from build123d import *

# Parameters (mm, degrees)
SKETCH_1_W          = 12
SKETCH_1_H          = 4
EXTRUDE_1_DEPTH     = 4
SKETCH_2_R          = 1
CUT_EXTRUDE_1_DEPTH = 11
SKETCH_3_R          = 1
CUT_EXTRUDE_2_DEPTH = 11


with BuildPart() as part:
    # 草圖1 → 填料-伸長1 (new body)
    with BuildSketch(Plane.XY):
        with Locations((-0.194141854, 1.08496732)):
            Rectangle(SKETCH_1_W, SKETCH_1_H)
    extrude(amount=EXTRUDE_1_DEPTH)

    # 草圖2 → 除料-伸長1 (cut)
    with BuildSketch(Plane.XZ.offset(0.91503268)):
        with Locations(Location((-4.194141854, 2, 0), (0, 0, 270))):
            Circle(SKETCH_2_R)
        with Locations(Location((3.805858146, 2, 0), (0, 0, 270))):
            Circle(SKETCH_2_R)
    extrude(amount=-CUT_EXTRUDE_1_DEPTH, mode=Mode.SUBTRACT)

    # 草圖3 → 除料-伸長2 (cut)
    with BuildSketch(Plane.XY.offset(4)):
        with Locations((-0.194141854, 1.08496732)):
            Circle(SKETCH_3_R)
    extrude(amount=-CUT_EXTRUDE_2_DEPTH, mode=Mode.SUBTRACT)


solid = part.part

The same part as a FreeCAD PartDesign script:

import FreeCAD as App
import Part
import Sketcher
from FreeCAD import Vector
Q = App.Units.Quantity

doc = App.newDocument("Part")
body = doc.addObject("PartDesign::Body", "Body")

# Sketch on XY plane
sketch1 = doc.addObject("Sketcher::SketchObject", "Sketch")
body.addObject(sketch1)
sketch1.AttachmentSupport = (doc.XY_Plane, [""])
sketch1.MapMode = "FlatFace"
sketch1.addGeometry([
    Part.LineSegment(Vector(-6.194142, 3.084967, 0), Vector(-6.194142, -0.915033, 0)),
    Part.LineSegment(Vector(-6.194142, -0.915033, 0), Vector(5.805858, -0.915033, 0)),
    Part.LineSegment(Vector(5.805858, -0.915033, 0), Vector(5.805858, 3.084967, 0)),
    Part.LineSegment(Vector(5.805858, 3.084967, 0), Vector(-6.194142, 3.084967, 0)),
], False)
sketch1.addConstraint([
    Sketcher.Constraint("Coincident", 0, 2, 1, 1),
    Sketcher.Constraint("Coincident", 1, 2, 2, 1),
    Sketcher.Constraint("Coincident", 2, 2, 3, 1),
    Sketcher.Constraint("Coincident", 3, 2, 0, 1),
    Sketcher.Constraint("Vertical", 0),
    Sketcher.Constraint("Horizontal", 1),
    Sketcher.Constraint("Vertical", 2),
    Sketcher.Constraint("Horizontal", 3),
    Sketcher.Constraint("DistanceX", 1, 1, 1, 2, Q("12 mm")),
    Sketcher.Constraint("DistanceY", 0, 2, 0, 1, Q("4 mm")),
    Sketcher.Constraint("DistanceX", 0, 2, -1, 1, Q("6.194142 mm")),
    Sketcher.Constraint("DistanceY", 0, 2, -1, 1, Q("0.915033 mm")),
])
pad1 = doc.addObject("PartDesign::Pad", "Pad")
body.addObject(pad1)
pad1.Profile = sketch1
pad1.Length = 4

# Sketch on XZ plane
sketch2 = doc.addObject("Sketcher::SketchObject", "Sketch001")
body.addObject(sketch2)
sketch2.AttachmentSupport = (doc.XZ_Plane, [""])
sketch2.MapMode = "FlatFace"
sketch2.AttachmentOffset = App.Placement(Vector(0, 0, 0.915033), App.Rotation())
sketch2.addGeometry([
    Part.Circle(Vector(-4.194142, 2, 0), Vector(0, 0, 1), 1),
    Part.Circle(Vector(3.805858, 2, 0), Vector(0, 0, 1), 1),
], False)
sketch2.addConstraint([
    Sketcher.Constraint("Equal", 0, 1),
    Sketcher.Constraint("Horizontal", 0, 3, 1, 3),
    Sketcher.Constraint("Diameter", 0, Q("2 mm")),
    Sketcher.Constraint("DistanceY", -1, 1, 0, 3, Q("2 mm")),
    Sketcher.Constraint("DistanceX", 0, 3, 1, 3, Q("8 mm")),
    Sketcher.Constraint("DistanceX", 0, 3, -1, 1, Q("4.194142 mm")),
])
pocket1 = doc.addObject("PartDesign::Pocket", "Pocket")
body.addObject(pocket1)
pocket1.Profile = sketch2
pocket1.Length = 11

# Sketch on XY plane
sketch3 = doc.addObject("Sketcher::SketchObject", "Sketch002")
body.addObject(sketch3)
sketch3.AttachmentSupport = (doc.XY_Plane, [""])
sketch3.MapMode = "FlatFace"
sketch3.AttachmentOffset = App.Placement(Vector(0, 0, 4), App.Rotation())
sketch3.addGeometry(Part.Circle(Vector(-0.194142, 1.084967, 0), Vector(0, 0, 1), 1), False)
sketch3.addConstraint([
    Sketcher.Constraint("Diameter", 0, Q("2 mm")),
    Sketcher.Constraint("DistanceX", 0, 3, -1, 1, Q("0.194142 mm")),
    Sketcher.Constraint("DistanceY", -1, 1, 0, 3, Q("1.084967 mm")),
])
pocket2 = doc.addObject("PartDesign::Pocket", "Pocket001")
body.addObject(pocket2)
pocket2.Profile = sketch3
pocket2.Length = 11

doc.recompute()
